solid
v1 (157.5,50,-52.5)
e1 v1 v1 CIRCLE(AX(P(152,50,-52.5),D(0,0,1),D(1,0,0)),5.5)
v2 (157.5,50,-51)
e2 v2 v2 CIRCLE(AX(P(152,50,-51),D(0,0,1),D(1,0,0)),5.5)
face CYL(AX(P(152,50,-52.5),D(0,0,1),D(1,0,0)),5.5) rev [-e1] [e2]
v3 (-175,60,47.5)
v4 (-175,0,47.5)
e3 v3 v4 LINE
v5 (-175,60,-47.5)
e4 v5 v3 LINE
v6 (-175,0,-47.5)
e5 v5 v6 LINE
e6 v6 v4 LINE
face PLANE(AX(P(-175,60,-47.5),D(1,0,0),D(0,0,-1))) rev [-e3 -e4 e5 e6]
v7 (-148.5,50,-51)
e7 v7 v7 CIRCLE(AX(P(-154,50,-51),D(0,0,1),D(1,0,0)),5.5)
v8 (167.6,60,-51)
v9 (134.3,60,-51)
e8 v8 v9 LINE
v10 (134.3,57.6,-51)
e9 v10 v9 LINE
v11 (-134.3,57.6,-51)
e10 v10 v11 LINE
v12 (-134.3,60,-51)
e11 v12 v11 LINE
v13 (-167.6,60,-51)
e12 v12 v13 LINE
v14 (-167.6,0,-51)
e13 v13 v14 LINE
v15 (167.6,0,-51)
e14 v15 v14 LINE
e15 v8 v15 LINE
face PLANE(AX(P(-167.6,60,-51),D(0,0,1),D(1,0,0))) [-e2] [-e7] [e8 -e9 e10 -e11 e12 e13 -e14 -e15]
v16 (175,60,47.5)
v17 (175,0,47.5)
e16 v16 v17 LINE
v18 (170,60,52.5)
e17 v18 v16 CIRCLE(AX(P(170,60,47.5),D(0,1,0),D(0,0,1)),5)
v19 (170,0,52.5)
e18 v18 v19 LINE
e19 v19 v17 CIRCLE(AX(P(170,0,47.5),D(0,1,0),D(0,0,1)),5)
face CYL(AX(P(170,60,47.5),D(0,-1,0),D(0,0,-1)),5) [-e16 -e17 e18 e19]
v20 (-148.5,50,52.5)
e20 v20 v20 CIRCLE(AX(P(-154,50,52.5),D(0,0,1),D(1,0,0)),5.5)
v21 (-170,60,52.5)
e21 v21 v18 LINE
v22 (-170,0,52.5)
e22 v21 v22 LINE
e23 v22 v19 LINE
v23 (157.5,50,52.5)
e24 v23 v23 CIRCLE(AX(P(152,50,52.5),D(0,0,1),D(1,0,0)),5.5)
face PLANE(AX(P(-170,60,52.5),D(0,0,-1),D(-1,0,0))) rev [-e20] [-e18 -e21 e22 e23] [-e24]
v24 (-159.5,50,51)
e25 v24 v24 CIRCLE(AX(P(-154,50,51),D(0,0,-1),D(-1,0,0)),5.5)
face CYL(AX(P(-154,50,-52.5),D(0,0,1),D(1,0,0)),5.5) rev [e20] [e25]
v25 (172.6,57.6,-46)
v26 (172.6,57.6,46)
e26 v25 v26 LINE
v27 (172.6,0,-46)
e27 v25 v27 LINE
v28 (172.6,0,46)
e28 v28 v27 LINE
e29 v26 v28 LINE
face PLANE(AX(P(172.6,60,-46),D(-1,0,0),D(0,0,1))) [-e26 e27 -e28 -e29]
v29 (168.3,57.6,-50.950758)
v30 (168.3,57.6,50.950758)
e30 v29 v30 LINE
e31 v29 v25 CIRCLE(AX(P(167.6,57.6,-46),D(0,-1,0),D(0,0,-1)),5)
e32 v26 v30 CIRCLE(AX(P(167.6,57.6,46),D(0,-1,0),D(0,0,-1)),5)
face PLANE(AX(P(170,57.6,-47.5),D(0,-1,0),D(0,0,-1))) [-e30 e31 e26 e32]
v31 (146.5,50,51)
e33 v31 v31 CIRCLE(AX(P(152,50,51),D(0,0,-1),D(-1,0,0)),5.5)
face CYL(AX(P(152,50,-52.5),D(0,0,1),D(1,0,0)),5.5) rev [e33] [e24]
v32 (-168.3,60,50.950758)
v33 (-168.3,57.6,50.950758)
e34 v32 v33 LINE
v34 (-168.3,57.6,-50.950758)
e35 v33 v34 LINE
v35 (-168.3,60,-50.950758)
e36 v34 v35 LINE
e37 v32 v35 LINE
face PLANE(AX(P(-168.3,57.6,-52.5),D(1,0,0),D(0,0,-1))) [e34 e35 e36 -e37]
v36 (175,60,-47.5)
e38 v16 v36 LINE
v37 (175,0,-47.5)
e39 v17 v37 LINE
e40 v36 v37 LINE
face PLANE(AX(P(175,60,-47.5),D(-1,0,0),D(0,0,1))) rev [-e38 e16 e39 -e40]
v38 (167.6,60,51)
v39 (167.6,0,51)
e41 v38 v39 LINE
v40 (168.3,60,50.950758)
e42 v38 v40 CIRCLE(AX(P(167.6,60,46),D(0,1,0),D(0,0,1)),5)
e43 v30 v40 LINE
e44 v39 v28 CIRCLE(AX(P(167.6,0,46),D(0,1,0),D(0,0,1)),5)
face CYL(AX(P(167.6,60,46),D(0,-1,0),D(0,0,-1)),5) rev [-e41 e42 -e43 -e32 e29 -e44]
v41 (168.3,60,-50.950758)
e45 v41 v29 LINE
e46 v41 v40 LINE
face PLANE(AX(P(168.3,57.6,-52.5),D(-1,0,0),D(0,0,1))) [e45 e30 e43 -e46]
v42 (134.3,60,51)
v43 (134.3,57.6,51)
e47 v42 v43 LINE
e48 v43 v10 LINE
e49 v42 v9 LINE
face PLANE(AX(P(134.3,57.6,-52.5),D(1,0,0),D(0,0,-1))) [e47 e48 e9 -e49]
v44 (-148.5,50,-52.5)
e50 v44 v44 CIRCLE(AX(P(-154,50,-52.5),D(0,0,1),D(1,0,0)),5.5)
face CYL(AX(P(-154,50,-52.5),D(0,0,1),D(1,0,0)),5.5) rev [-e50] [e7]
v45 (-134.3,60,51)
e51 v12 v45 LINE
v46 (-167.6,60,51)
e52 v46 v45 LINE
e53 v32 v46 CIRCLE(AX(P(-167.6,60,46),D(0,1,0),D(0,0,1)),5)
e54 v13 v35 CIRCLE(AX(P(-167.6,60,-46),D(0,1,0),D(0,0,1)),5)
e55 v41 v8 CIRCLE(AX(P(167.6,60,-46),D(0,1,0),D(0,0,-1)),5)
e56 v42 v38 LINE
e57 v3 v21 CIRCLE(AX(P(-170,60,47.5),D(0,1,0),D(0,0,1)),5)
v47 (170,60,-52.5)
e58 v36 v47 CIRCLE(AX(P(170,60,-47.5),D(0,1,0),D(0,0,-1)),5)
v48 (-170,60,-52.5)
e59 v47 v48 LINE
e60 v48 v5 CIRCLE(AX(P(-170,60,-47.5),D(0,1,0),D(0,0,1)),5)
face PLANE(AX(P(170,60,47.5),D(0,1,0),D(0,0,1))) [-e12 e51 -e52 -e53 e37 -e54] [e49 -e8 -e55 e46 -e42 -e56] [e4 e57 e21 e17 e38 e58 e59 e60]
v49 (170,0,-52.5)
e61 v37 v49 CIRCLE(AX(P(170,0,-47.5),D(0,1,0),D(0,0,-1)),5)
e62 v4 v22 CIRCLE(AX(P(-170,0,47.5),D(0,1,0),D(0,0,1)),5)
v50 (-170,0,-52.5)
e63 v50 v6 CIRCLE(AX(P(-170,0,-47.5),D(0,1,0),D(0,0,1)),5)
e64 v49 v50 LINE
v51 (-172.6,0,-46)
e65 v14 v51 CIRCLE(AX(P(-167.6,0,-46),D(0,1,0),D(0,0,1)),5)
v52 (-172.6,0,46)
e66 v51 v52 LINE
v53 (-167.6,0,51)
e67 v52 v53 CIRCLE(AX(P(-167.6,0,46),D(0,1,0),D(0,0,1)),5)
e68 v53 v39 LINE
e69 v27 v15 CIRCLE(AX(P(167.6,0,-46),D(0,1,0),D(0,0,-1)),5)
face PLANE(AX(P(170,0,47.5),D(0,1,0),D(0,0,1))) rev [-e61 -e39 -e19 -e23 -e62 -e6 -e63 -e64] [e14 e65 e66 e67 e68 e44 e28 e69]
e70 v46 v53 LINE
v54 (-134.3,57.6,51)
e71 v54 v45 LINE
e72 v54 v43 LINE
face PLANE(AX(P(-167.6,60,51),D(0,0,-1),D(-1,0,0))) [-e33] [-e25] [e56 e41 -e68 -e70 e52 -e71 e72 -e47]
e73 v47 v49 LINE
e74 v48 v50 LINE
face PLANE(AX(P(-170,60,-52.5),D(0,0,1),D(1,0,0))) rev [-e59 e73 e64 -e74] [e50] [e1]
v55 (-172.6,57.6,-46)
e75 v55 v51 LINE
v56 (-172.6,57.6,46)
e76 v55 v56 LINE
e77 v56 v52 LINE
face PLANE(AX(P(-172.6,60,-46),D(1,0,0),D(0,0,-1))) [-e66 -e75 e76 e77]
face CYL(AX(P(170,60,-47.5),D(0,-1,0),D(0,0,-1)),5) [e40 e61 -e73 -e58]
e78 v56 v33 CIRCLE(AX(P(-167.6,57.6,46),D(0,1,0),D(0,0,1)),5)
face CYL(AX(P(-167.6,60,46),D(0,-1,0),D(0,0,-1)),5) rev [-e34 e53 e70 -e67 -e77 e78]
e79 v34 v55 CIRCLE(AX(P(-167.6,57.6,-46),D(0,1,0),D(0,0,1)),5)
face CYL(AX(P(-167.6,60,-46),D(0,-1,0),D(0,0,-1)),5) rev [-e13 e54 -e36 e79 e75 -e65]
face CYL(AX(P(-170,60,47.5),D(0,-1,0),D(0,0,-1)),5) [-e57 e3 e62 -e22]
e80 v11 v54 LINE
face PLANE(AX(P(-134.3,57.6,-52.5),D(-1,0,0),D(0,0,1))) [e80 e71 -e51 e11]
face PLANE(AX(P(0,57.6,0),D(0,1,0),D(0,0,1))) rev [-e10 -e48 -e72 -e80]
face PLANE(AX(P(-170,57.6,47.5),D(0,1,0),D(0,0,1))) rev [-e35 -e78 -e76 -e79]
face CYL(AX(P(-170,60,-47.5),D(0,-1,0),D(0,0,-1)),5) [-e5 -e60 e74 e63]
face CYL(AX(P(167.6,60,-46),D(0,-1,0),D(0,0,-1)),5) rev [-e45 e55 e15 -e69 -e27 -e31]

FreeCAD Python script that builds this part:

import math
import FreeCAD as App
import Part
import Sketcher
from FreeCAD import Vector


def add_polygon(sketch, points):
    """Adds a closed chain of lines whose ends are joined by coincident constraints."""
    first, n = sketch.GeometryCount, len(points)
    for a, b in zip(points, points[1:] + points[:1]):
        sketch.addGeometry(Part.LineSegment(App.Vector(*a, 0), App.Vector(*b, 0)), False)
    for i in range(n):
        sketch.addConstraint(Sketcher.Constraint("Coincident", first + i, 2, first + (i + 1) % n, 1))

doc = App.newDocument("Part")
body = doc.addObject("PartDesign::Body", "Body")

# Sketch on XZ plane
sketch1 = doc.addObject("Sketcher::SketchObject", "Sketch")
body.addObject(sketch1)
sketch1.AttachmentSupport = (doc.XZ_Plane, [""])
sketch1.MapMode = "FlatFace"
sketch1.addGeometry([
    Part.LineSegment(Vector(170, -52, 0), Vector(-170, -52, 0)),  # 0
    Part.ArcOfCircle(Part.Circle(Vector(-170, -48, 0), Vector(0, 0, 1), 5), math.radians(180), math.radians(270)),  # 1
    Part.LineSegment(Vector(-175, -48, 0), Vector(-175, 48, 0)),  # 2
    Part.ArcOfCircle(Part.Circle(Vector(-170, 48, 0), Vector(0, 0, 1), 5), math.radians(90), math.radians(180)),  # 3
    Part.LineSegment(Vector(-170, 52, 0), Vector(170, 52, 0)),  # 4
    Part.ArcOfCircle(Part.Circle(Vector(170, 48, 0), Vector(0, 0, 1), 5), math.radians(0), math.radians(90)),  # 5
    Part.LineSegment(Vector(175, 48, 0), Vector(175, -48, 0)),  # 6
    Part.ArcOfCircle(Part.Circle(Vector(170, -48, 0), Vector(0, 0, 1), 5), math.radians(-90), math.radians(0)),  # 7
    Part.LineSegment(Vector(-168, -51, 0), Vector(168, -51, 0)),  # 8
    Part.ArcOfCircle(Part.Circle(Vector(168, -46, 0), Vector(0, 0, 1), 5), math.radians(-90), math.radians(0)),  # 9
    Part.LineSegment(Vector(173, -46, 0), Vector(173, 46, 0)),  # 10
    Part.ArcOfCircle(Part.Circle(Vector(168, 46, 0), Vector(0, 0, 1), 5), math.radians(0), math.radians(90)),  # 11
    Part.LineSegment(Vector(168, 51, 0), Vector(-168, 51, 0)),  # 12
    Part.ArcOfCircle(Part.Circle(Vector(-168, 46, 0), Vector(0, 0, 1), 5), math.radians(90), math.radians(180)),  # 13
    Part.LineSegment(Vector(-173, 46, 0), Vector(-173, -46, 0)),  # 14
    Part.ArcOfCircle(Part.Circle(Vector(-168, -46, 0), Vector(0, 0, 1), 5), math.radians(180), math.radians(270)),  # 15
], False)
sketch1.addConstraint([
    Sketcher.Constraint("Tangent", 0, 2, 1, 2),
    Sketcher.Constraint("Tangent", 1, 1, 2, 1),
    Sketcher.Constraint("Tangent", 2, 2, 3, 2),
    Sketcher.Constraint("Tangent", 3, 1, 4, 1),
    Sketcher.Constraint("Tangent", 4, 2, 5, 2),
    Sketcher.Constraint("Tangent", 5, 1, 6, 1),
    Sketcher.Constraint("Tangent", 6, 2, 7, 2),
    Sketcher.Constraint("Tangent", 7, 1, 0, 1),
    Sketcher.Constraint("Tangent", 8, 2, 9, 1),
    Sketcher.Constraint("Tangent", 9, 2, 10, 1),
    Sketcher.Constraint("Tangent", 10, 2, 11, 1),
    Sketcher.Constraint("Tangent", 11, 2, 12, 1),
    Sketcher.Constraint("Tangent", 12, 2, 13, 1),
    Sketcher.Constraint("Tangent", 13, 2, 14, 1),
    Sketcher.Constraint("Tangent", 14, 2, 15, 1),
    Sketcher.Constraint("Tangent", 15, 2, 8, 1),
    Sketcher.Constraint("Horizontal", 0),
    Sketcher.Constraint("Vertical", 2),
    Sketcher.Constraint("Horizontal", 4),
    Sketcher.Constraint("Vertical", 6),
    Sketcher.Constraint("Horizontal", 8),
    Sketcher.Constraint("Vertical", 10),
    Sketcher.Constraint("Horizontal", 12),
    Sketcher.Constraint("Vertical", 14),
    Sketcher.Constraint("Equal", 1, 3),
    Sketcher.Constraint("Equal", 3, 5),
    Sketcher.Constraint("Equal", 5, 7),
    Sketcher.Constraint("Equal", 7, 9),
    Sketcher.Constraint("Equal", 9, 11),
    Sketcher.Constraint("Equal", 11, 13),
    Sketcher.Constraint("Equal", 13, 15),
    Sketcher.Constraint("Symmetric", 1, 3, 5, 3, -1, 1),
    Sketcher.Constraint("Symmetric", 9, 3, 13, 3, -1, 1),
    Sketcher.Constraint("Radius", 1, 5.0),
    Sketcher.Constraint("DistanceX", 0, 2, 0, 1, 340.0),
    Sketcher.Constraint("DistanceY", 2, 1, 2, 2, 95.0),
    Sketcher.Constraint("DistanceY", 10, 1, 10, 2, 92.0),
    Sketcher.Constraint("DistanceX", 8, 1, 8, 2, 335.2),
])
pad1 = doc.addObject("PartDesign::Pad", "Pad")
body.addObject(pad1)
pad1.Profile = sketch1
pad1.Length = 60
pad1.Reversed = True

# Sketch on XZ plane
sketch2 = doc.addObject("Sketcher::SketchObject", "Sketch001")
body.addObject(sketch2)
sketch2.AttachmentSupport = (doc.XZ_Plane, [""])
sketch2.MapMode = "FlatFace"
sketch2.AttachmentOffset = App.Placement(Vector(0, 0, -60), App.Rotation())
sketch2.addGeometry(Part.LineSegment(Vector(-168.3, -52.5, 0), Vector(-170, -52.5, 0)), False)  # 0
sketch2.addGeometry(Part.ArcOfCircle(Part.Circle(Vector(-170, -47.5, 0), Vector(0, 0, 1), 5), math.radians(180), math.radians(270)), False)  # 1
sketch2.addGeometry(Part.LineSegment(Vector(-175, -47.5, 0), Vector(-175, 47.5, 0)), False)  # 2
sketch2.addGeometry(Part.ArcOfCircle(Part.Circle(Vector(-170, 47.5, 0), Vector(0, 0, 1), 5), math.radians(90), math.radians(180)), False)  # 3
sketch2.addGeometry(Part.LineSegment(Vector(-170, 52.5, 0), Vector(-168.3, 52.5, 0)), False)  # 4
sketch2.addGeometry(Part.LineSegment(Vector(-168.3, 52.5, 0), Vector(-168.3, -52.5, 0)), False)  # 5
sketch2.addGeometry(Part.LineSegment(Vector(170, -52.5, 0), Vector(168.3, -52.5, 0)), False)  # 6
sketch2.addGeometry(Part.LineSegment(Vector(168.3, -52.5, 0), Vector(168.3, 52.5, 0)), False)  # 7
sketch2.addGeometry(Part.LineSegment(Vector(168.3, 52.5, 0), Vector(170, 52.5, 0)), False)  # 8
sketch2.addGeometry(Part.ArcOfCircle(Part.Circle(Vector(170, 47.5, 0), Vector(0, 0, 1), 5), math.radians(0), math.radians(90)), False)  # 9
sketch2.addGeometry(Part.LineSegment(Vector(175, 47.5, 0), Vector(175, -47.5, 0)), False)  # 10
sketch2.addGeometry(Part.ArcOfCircle(Part.Circle(Vector(170, -47.5, 0), Vector(0, 0, 1), 5), math.radians(-90), math.radians(0)), False)  # 11
add_polygon(sketch2, [(-134.3, -52.5), (-134.3, 52.5), (134.3, 52.5), (134.3, -52.5)])  # lines 12-15
sketch2.addConstraint([
    Sketcher.Constraint("Tangent", 0, 2, 1, 2),
    Sketcher.Constraint("Tangent", 1, 1, 2, 1),
    Sketcher.Constraint("Tangent", 2, 2, 3, 2),
    Sketcher.Constraint("Tangent", 3, 1, 4, 1),
    Sketcher.Constraint("Coincident", 4, 2, 5, 1),
    Sketcher.Constraint("Coincident", 5, 2, 0, 1),
    Sketcher.Constraint("Coincident", 6, 2, 7, 1),
    Sketcher.Constraint("Coincident", 7, 2, 8, 1),
    Sketcher.Constraint("Tangent", 8, 2, 9, 2),
    Sketcher.Constraint("Tangent", 9, 1, 10, 1),
    Sketcher.Constraint("Tangent", 10, 2, 11, 2),
    Sketcher.Constraint("Tangent", 11, 1, 6, 1),
    Sketcher.Constraint("Horizontal", 0),
    Sketcher.Constraint("Vertical", 2),
    Sketcher.Constraint("Horizontal", 4),
    Sketcher.Constraint("Vertical", 5),
    Sketcher.Constraint("Horizontal", 6),
    Sketcher.Constraint("Vertical", 7),
    Sketcher.Constraint("Horizontal", 8),
    Sketcher.Constraint("Vertical", 10),
    Sketcher.Constraint("Vertical", 12),
    Sketcher.Constraint("Horizontal", 13),
    Sketcher.Constraint("Vertical", 14),
    Sketcher.Constraint("Horizontal", 15),
    Sketcher.Constraint("Equal", 1, 3),
    Sketcher.Constraint("Equal", 3, 9),
    Sketcher.Constraint("Equal", 9, 11),
    Sketcher.Constraint("Symmetric", 1, 3, 9, 3, -1, 1),
    Sketcher.Constraint("Symmetric", 4, 2, 6, 2, -1, 1),
    Sketcher.Constraint("Symmetric", 12, 2, 14, 2, -1, 1),
    Sketcher.Constraint("Horizontal", 3, 3, 9, 3),
    Sketcher.Constraint("Horizontal", 8, 2, 12, 2),
    Sketcher.Constraint("Radius", 1, 5.0),
    Sketcher.Constraint("DistanceY", 2, 1, 2, 2, 95.0),
    Sketcher.Constraint("DistanceX", 0, 2, 0, 1, 1.7),
    Sketcher.Constraint("DistanceX", 13, 1, 13, 2, 268.6),
    Sketcher.Constraint("DistanceX", 1, 3, -1, 1, 170.0),
])
pad2 = doc.addObject("PartDesign::Pad", "Pad001")
body.addObject(pad2)
pad2.Profile = sketch2
pad2.Length = 2.4

# Sketch on XY plane
sketch3 = doc.addObject("Sketcher::SketchObject", "Sketch002")
body.addObject(sketch3)
sketch3.AttachmentSupport = (doc.XY_Plane, [""])
sketch3.MapMode = "FlatFace"
sketch3.AttachmentOffset = App.Placement(Vector(0, 0, 52.5), App.Rotation())
sketch3.addGeometry([
    Part.Circle(Vector(152, 50, 0), Vector(0, 0, 1), 6),
    Part.Circle(Vector(-154, 50, 0), Vector(0, 0, 1), 6),
], False)
sketch3.addConstraint([
    Sketcher.Constraint("Equal", 0, 1),
    Sketcher.Constraint("Horizontal", 0, 3, 1, 3),
    Sketcher.Constraint("Diameter", 0, 11.0),
    Sketcher.Constraint("DistanceX", -1, 1, 0, 3, 152.0),
    Sketcher.Constraint("DistanceY", -1, 1, 0, 3, 50.0),
    Sketcher.Constraint("DistanceX", 1, 3, -1, 1, 154.0),
])
pocket1 = doc.addObject("PartDesign::Pocket", "Pocket")
body.addObject(pocket1)
pocket1.Profile = sketch3
pocket1.Type = "ThroughAll"

doc.recompute()
